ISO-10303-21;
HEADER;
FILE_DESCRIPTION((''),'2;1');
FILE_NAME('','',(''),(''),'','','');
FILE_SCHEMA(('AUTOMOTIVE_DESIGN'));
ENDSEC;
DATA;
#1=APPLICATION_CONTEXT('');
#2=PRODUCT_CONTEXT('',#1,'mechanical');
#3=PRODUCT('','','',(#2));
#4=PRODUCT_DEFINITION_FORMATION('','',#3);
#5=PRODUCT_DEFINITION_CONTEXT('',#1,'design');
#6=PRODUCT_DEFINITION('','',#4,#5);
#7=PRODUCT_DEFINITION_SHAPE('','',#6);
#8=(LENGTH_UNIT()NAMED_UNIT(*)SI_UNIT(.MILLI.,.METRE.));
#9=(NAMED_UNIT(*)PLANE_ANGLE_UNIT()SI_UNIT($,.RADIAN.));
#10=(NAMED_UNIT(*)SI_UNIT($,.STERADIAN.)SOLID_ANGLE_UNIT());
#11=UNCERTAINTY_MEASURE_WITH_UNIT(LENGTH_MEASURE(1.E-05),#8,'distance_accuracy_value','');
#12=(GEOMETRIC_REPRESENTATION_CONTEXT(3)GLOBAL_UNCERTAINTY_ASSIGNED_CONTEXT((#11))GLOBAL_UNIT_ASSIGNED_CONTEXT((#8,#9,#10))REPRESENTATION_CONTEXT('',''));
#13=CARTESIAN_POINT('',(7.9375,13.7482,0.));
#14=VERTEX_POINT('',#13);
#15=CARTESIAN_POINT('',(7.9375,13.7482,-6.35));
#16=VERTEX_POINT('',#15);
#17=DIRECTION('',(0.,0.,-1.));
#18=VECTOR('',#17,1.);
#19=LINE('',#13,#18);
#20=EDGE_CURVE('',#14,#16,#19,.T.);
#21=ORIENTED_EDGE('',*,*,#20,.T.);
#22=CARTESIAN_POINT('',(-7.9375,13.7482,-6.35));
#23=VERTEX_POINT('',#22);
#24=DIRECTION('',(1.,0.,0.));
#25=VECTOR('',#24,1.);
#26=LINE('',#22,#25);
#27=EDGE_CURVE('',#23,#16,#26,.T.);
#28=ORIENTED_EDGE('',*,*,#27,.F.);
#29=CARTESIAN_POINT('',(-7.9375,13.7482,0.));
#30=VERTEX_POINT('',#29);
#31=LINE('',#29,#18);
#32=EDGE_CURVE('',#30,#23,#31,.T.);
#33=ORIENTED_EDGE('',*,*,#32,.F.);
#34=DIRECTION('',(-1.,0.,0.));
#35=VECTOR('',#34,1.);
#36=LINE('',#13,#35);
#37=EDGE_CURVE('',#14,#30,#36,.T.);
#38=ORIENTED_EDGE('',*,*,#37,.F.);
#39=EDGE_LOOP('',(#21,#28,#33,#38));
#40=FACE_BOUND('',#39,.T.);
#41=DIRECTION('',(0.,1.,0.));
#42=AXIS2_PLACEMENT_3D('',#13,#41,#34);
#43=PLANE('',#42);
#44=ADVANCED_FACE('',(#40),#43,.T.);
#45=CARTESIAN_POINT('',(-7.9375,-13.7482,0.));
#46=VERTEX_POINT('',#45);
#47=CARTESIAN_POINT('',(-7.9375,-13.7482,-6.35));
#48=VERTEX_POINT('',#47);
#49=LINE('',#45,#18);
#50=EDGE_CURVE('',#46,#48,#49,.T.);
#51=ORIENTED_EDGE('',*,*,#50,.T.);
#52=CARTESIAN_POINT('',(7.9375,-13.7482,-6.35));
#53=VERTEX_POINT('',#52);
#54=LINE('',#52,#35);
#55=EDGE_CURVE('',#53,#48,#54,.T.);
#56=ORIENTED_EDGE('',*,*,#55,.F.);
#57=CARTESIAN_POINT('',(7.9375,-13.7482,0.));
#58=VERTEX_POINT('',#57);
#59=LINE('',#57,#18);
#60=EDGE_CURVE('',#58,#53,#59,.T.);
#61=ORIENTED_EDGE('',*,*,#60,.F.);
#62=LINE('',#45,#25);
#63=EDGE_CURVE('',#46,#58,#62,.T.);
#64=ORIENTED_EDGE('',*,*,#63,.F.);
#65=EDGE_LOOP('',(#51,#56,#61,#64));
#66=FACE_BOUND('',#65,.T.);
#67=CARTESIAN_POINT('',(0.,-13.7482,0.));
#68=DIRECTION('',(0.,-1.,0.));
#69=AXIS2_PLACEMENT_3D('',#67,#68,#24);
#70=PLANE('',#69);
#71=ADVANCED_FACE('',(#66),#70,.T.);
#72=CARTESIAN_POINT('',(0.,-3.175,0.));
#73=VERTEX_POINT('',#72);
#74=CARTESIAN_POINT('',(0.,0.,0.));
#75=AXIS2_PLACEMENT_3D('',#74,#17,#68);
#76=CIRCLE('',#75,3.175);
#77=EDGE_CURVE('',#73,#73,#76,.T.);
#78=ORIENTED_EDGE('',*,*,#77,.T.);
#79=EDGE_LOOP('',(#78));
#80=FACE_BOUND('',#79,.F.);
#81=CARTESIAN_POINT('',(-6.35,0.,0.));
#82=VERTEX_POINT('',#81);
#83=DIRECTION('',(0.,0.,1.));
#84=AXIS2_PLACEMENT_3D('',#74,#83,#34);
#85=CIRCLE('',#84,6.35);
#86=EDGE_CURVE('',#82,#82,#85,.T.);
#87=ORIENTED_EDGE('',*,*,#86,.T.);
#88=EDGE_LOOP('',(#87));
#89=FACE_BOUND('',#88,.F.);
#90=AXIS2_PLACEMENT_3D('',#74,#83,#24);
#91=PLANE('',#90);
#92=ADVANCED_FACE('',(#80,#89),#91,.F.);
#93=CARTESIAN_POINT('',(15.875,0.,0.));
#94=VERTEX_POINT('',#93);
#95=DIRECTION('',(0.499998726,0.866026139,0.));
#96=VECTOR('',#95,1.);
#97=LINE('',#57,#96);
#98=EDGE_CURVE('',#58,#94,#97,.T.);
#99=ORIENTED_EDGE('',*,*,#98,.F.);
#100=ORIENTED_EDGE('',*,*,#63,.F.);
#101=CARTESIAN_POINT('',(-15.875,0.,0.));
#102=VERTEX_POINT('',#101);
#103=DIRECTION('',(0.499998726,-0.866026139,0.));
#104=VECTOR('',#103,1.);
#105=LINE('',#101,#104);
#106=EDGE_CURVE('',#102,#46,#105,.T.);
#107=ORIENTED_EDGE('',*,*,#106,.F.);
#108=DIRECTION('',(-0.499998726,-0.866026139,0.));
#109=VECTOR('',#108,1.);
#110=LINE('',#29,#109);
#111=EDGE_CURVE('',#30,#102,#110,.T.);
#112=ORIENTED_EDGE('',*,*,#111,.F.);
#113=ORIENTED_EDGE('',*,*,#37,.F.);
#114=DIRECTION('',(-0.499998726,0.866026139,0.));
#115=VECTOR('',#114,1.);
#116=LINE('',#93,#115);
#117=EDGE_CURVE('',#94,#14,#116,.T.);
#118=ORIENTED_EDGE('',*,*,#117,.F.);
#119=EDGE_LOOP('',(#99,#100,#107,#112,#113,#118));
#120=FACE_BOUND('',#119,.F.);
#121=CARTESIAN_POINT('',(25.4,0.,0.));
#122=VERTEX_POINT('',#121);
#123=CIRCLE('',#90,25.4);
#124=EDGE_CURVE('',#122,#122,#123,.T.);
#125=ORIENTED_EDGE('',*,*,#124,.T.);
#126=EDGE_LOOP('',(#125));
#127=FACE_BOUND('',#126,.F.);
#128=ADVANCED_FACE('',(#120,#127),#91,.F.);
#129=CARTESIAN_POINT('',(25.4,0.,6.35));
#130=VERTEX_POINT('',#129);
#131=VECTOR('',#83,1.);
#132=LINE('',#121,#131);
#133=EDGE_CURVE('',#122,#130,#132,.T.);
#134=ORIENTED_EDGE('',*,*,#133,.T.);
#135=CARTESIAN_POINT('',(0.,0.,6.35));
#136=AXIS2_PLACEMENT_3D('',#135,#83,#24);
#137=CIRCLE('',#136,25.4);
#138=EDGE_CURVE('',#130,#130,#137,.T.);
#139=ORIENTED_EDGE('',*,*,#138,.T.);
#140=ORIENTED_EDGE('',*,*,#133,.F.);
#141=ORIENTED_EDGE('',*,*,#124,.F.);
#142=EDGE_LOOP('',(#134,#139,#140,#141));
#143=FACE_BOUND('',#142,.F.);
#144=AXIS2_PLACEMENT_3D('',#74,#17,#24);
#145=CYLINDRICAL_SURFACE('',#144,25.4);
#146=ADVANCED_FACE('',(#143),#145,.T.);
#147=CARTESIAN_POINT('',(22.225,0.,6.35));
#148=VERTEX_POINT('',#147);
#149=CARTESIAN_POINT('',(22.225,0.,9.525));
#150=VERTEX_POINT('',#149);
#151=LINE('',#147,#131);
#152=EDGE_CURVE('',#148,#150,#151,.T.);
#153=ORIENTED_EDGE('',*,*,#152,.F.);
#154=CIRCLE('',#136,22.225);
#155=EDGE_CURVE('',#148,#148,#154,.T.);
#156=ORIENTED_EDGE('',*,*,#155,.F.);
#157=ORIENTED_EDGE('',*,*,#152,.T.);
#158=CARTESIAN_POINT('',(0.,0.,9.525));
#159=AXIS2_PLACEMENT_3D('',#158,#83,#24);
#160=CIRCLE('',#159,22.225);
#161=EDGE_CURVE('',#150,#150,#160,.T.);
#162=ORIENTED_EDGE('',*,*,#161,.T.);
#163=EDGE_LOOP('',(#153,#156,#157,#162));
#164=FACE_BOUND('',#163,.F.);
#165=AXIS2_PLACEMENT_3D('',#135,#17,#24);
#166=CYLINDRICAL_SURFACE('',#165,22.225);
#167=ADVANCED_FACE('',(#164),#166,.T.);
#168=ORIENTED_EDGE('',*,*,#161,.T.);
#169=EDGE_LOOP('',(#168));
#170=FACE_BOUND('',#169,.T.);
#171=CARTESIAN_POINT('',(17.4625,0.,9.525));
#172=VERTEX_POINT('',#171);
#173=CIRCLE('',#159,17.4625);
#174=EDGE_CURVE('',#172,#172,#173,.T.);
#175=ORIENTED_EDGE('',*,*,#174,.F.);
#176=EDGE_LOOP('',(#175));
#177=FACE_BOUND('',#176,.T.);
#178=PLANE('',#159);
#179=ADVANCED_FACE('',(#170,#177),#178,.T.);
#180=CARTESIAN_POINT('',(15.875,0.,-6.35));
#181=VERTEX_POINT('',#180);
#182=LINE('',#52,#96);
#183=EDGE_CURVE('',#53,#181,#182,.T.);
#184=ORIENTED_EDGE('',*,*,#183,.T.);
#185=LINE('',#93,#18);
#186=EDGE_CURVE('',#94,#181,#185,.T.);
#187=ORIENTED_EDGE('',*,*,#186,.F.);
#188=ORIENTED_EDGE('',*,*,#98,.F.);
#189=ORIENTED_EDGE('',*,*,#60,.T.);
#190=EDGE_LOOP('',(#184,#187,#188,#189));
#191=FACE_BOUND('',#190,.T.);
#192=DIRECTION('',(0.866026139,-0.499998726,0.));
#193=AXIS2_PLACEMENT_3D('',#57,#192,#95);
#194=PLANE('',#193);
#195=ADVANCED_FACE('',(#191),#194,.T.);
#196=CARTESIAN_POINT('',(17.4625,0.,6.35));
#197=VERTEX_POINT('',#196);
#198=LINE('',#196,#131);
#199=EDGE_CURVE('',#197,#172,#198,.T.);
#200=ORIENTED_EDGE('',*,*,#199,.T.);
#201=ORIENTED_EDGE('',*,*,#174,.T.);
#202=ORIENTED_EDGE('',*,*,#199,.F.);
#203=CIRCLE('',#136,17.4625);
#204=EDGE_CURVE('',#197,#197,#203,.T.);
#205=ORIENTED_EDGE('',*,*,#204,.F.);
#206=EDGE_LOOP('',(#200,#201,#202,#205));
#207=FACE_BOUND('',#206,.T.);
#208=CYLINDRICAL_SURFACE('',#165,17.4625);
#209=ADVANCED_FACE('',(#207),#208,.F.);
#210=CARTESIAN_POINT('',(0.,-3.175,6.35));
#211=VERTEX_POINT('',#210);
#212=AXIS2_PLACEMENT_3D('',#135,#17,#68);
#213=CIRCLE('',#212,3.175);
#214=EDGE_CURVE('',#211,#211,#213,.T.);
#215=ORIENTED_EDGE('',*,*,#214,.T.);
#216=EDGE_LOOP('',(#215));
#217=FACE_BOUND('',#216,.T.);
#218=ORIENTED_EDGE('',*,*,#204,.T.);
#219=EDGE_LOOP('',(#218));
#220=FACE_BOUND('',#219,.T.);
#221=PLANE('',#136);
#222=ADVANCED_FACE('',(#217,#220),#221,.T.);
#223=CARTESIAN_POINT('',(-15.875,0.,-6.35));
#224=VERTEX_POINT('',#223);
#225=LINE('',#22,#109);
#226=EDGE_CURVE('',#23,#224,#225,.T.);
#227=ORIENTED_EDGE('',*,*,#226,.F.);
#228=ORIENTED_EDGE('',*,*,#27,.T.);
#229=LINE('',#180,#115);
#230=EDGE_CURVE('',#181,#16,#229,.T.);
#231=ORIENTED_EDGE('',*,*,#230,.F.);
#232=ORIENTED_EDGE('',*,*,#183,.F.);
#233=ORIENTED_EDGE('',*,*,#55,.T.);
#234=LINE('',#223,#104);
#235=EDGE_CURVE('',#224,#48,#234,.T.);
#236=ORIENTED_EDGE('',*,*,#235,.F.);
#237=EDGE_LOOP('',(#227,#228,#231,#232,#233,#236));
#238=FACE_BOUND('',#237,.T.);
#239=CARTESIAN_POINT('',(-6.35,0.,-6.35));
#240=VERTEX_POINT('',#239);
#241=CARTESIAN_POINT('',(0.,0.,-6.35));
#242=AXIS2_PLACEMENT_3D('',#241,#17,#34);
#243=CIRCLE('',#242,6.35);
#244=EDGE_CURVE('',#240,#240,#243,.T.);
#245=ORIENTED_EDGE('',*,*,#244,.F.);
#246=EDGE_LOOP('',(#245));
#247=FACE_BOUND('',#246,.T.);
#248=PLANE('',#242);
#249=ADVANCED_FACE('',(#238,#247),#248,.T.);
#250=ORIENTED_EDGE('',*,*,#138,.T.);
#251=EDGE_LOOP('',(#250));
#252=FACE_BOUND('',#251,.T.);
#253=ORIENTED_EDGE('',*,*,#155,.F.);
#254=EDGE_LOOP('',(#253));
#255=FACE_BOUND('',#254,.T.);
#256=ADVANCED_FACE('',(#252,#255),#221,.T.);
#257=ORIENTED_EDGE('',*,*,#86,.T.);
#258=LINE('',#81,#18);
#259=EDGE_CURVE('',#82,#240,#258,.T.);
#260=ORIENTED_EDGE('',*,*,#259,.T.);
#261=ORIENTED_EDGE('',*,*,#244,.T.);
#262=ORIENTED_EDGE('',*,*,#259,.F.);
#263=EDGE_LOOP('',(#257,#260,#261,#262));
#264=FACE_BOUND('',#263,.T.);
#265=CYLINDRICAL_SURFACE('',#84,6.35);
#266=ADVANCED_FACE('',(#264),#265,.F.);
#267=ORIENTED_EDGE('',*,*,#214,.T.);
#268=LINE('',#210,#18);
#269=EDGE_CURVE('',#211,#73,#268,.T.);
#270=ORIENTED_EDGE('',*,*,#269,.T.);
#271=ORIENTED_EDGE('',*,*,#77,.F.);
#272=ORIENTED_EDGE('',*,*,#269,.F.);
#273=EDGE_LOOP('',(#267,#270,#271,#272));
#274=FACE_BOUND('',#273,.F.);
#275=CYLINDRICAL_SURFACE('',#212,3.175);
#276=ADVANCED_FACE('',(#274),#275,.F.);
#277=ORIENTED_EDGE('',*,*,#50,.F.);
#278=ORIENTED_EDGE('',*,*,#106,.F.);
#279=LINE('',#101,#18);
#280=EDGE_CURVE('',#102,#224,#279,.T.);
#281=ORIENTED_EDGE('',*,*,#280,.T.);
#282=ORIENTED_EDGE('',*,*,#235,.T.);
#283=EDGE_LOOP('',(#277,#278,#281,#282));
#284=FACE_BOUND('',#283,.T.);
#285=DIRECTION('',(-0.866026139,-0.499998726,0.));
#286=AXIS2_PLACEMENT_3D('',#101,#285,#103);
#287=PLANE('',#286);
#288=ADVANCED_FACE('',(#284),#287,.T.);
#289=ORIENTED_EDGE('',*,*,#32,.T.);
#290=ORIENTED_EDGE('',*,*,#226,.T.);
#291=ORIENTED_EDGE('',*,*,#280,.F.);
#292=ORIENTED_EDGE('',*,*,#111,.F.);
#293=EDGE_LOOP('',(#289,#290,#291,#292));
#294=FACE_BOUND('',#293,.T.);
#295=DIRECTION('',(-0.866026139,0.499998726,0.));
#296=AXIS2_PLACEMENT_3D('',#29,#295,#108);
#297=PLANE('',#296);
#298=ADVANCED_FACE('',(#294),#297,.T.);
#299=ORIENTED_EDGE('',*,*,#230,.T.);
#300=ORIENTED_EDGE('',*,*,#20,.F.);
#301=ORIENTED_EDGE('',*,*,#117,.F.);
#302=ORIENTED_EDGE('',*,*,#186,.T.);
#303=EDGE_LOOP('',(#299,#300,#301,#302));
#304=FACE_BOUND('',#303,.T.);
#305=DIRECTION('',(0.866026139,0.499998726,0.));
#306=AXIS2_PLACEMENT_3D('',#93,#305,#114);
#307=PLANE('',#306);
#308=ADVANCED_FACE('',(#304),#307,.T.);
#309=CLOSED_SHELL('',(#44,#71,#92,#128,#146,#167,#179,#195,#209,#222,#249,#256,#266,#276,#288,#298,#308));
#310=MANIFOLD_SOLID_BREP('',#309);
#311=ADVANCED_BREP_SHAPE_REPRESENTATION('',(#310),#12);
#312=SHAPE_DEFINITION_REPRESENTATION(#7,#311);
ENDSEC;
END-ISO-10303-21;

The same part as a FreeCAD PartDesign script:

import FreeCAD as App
import Part
import Sketcher
Q = App.Units.Quantity

doc = App.newDocument("Part")
params = doc.addObject("Spreadsheet::Sheet", "Params")
for row, (alias, value) in enumerate([
    ("sketch1_diameter", "2 in"),
    ("pad1_length", "0.25 in"),
    ("sketch2_diameter", "1.75 in"),
    ("sketch2_diameter2", "1.375 in"),
    ("pad2_length", "0.125 in"),
    ("sketch3_diameter", "0.5 in"),
    ("sketch3_width", "0.625 in"),
    ("sketch3_length", "0.625 in"),
    ("pad3_length", "0.25 in"),
    ("sketch4_diameter", "0.25 in"),
    ("hole_diameter", "0.25 in"),
], start=1):
    params.set(f"A{row}", alias)
    params.set(f"B{row}", "=" + value)
    params.setAlias(f"B{row}", alias)

body = doc.addObject("PartDesign::Body", "Body")

# Sketch on XY plane
sketch1 = doc.addObject("Sketcher::SketchObject", "Sketch")
body.addObject(sketch1)
sketch1.AttachmentSupport = (doc.XY_Plane, [""])
sketch1.MapMode = "FlatFace"
sketch1.addGeometry(Part.Circle(App.Vector(0, 0, 0), App.Vector(0, 0, 1), 25), False)
sketch1.addConstraint([
    Sketcher.Constraint("Coincident", 0, 3, -1, 1),
    Sketcher.Constraint("Diameter", 0, Q("2 in")),
])
sketch1.setExpression("Constraints[1]", "Params.sketch1_diameter")
pad1 = doc.addObject("PartDesign::Pad", "Pad")
body.addObject(pad1)
pad1.Profile = sketch1
pad1.setExpression("Length", "Params.pad1_length")

# Sketch on XY plane
sketch2 = doc.addObject("Sketcher::SketchObject", "Sketch001")
body.addObject(sketch2)
sketch2.AttachmentSupport = (doc.XY_Plane, [""])
sketch2.MapMode = "FlatFace"
sketch2.AttachmentOffset = App.Placement(App.Vector(0, 0, 0.25 * 25.4), App.Rotation())
sketch2.addGeometry([
    Part.Circle(App.Vector(0, 0, 0), App.Vector(0, 0, 1), 22),
    Part.Circle(App.Vector(0, 0, 0), App.Vector(0, 0, 1), 17),
], False)
sketch2.addConstraint([
    Sketcher.Constraint("Coincident", 0, 3, -1, 1),
    Sketcher.Constraint("Coincident", 1, 3, -1, 1),
    Sketcher.Constraint("Diameter", 0, Q("1.75 in")),
    Sketcher.Constraint("Diameter", 1, Q("1.375 in")),
])
sketch2.setExpression("Constraints[2]", "Params.sketch2_diameter")
sketch2.setExpression("Constraints[3]", "Params.sketch2_diameter2")
pad2 = doc.addObject("PartDesign::Pad", "Pad001")
body.addObject(pad2)
pad2.Profile = sketch2
pad2.setExpression("Length", "Params.pad2_length")

# Sketch on XY plane
sketch3 = doc.addObject("Sketcher::SketchObject", "Sketch002")
body.addObject(sketch3)
sketch3.AttachmentSupport = (doc.XY_Plane, [""])
sketch3.MapMode = "FlatFace"
sketch3.addGeometry([
    Part.LineSegment(App.Vector(8, -14, 0), App.Vector(-8, -14, 0)),  # 0
    Part.LineSegment(App.Vector(-8, -14, 0), App.Vector(-16, 0, 0)),  # 1
    Part.LineSegment(App.Vector(-16, 0, 0), App.Vector(-8, 14, 0)),  # 2
    Part.LineSegment(App.Vector(-8, 14, 0), App.Vector(8, 14, 0)),  # 3
    Part.LineSegment(App.Vector(8, 14, 0), App.Vector(16, 0, 0)),  # 4
    Part.LineSegment(App.Vector(16, 0, 0), App.Vector(8, -14, 0)),  # 5
    Part.Circle(App.Vector(0, 0, 0), App.Vector(0, 0, 1), 6),  # 6
], False)
sketch3.addConstraint([
    Sketcher.Constraint("Coincident", 0, 2, 1, 1),
    Sketcher.Constraint("Coincident", 1, 2, 2, 1),
    Sketcher.Constraint("Coincident", 2, 2, 3, 1),
    Sketcher.Constraint("Coincident", 3, 2, 4, 1),
    Sketcher.Constraint("Coincident", 4, 2, 5, 1),
    Sketcher.Constraint("Coincident", 5, 2, 0, 1),
    Sketcher.Constraint("Horizontal", 0),
    Sketcher.Constraint("Horizontal", 3),
    Sketcher.Constraint("Coincident", 6, 3, -1, 1),
    Sketcher.Constraint("Symmetric", 0, 2, 3, 2, -1, 1),
    Sketcher.Constraint("Symmetric", 1, 2, 4, 2, -1, 1),
    Sketcher.Constraint("PointOnObject", 1, 2, -1),
    Sketcher.Constraint("Parallel", 2, 5),
    Sketcher.Constraint("Vertical", 0, 2, 2, 2),
    Sketcher.Constraint("Diameter", 6, Q("0.5 in")),
    Sketcher.Constraint("DistanceX", 0, 2, 0, 1, Q("0.625 in")),
    Sketcher.Constraint("Distance", 1, Q("0.625 in")),
    Sketcher.Constraint("DistanceX", 1, 2, -1, 1, Q("0.625 in")),
])
sketch3.setExpression("Constraints[14]", "Params.sketch3_diameter")
sketch3.setExpression("Constraints[15]", "Params.sketch3_width")
sketch3.setExpression("Constraints[16]", "Params.sketch3_length")
pad3 = doc.addObject("PartDesign::Pad", "Pad002")
body.addObject(pad3)
pad3.Profile = sketch3
pad3.setExpression("Length", "Params.pad3_length")
pad3.Reversed = True

# Sketch on XY plane
sketch4 = doc.addObject("Sketcher::SketchObject", "Sketch003")
body.addObject(sketch4)
sketch4.AttachmentSupport = (doc.XY_Plane, [""])
sketch4.MapMode = "FlatFace"
sketch4.AttachmentOffset = App.Placement(App.Vector(0, 0, 0.25 * 25.4), App.Rotation())
sketch4.addGeometry(Part.Circle(App.Vector(0, 0, 0), App.Vector(0, 0, 1), 3.2), False)
sketch4.addConstraint([
    Sketcher.Constraint("Coincident", 0, 3, -1, 1),
    Sketcher.Constraint("Diameter", 0, Q("0.25 in")),
])
sketch4.setExpression("Constraints[1]", "Params.sketch4_diameter")
doc.recompute()
hole = doc.addObject("PartDesign::Hole", "Hole")
body.addObject(hole)
hole.Profile = sketch4
hole.ThreadType = "None"
hole.setExpression("Diameter", "Params.hole_diameter")
hole.DepthType = "ThroughAll"

doc.recompute()
